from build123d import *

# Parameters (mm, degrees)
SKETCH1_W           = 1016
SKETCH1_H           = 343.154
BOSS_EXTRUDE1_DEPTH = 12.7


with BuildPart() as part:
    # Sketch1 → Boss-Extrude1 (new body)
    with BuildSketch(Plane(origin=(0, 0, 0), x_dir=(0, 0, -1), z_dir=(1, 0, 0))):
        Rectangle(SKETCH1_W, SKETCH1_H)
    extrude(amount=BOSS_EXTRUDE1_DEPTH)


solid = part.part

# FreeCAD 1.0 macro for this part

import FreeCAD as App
import Part
import Sketcher

V = App.Vector
Q = App.Units.Quantity


def add_polygon(sketch, points):
    """Adds a closed chain of lines whose ends are joined by coincident constraints."""
    first, n = sketch.GeometryCount, len(points)
    for a, b in zip(points, points[1:] + points[:1]):
        sketch.addGeometry(Part.LineSegment(App.Vector(*a, 0), App.Vector(*b, 0)), False)
    for i in range(n):
        sketch.addConstraint(Sketcher.Constraint("Coincident", first + i, 2, first + (i + 1) % n, 1))

doc = App.newDocument("Part")
params = doc.addObject("Spreadsheet::Sheet", "Params")
for row, (alias, value) in enumerate([
    ("sketch1_height", "40 in"),
    ("sketch1_width", "13.51 in"),
    ("pad1_length", "0.5 in"),
], start=1):
    params.set(f"A{row}", alias)
    params.set(f"B{row}", "=" + value)
    params.setAlias(f"B{row}", alias)

body = doc.addObject("PartDesign::Body", "Body")

# Sketch on YZ plane
sketch1 = doc.addObject("Sketcher::SketchObject", "Sketch")
body.addObject(sketch1)
sketch1.AttachmentSupport = (doc.YZ_Plane, [""])
sketch1.MapMode = "FlatFace"
add_polygon(sketch1, [(172, 508), (-172, 508), (-172, -508), (172, -508)])  # lines 0-3
sketch1.addConstraint([
    Sketcher.Constraint("Horizontal", 0),
    Sketcher.Constraint("Vertical", 1),
    Sketcher.Constraint("Horizontal", 2),
    Sketcher.Constraint("Vertical", 3),
    Sketcher.Constraint("Symmetric", 0, 2, 2, 2, -1, 1),
    Sketcher.Constraint("DistanceY", 1, 2, 1, 1, Q("40 in")),
    Sketcher.Constraint("DistanceX", 0, 2, 0, 1, Q("13.51 in")),
])
sketch1.setExpression("Constraints[9]", "Params.sketch1_height")
sketch1.setExpression("Constraints[10]", "Params.sketch1_width")
pad1 = doc.addObject("PartDesign::Pad", "Pad")
body.addObject(pad1)
pad1.Profile = sketch1
pad1.setExpression("Length", "Params.pad1_length")

doc.recompute()
